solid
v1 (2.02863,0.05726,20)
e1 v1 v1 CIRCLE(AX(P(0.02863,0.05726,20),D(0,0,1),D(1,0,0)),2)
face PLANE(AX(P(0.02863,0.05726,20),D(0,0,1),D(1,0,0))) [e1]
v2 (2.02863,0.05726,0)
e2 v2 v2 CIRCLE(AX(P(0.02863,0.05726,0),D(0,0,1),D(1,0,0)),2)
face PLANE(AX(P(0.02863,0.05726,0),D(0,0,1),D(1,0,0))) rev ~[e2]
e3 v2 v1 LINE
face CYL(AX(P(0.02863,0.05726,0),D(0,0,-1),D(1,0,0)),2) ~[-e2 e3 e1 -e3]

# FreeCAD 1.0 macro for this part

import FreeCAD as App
import Part
import Sketcher
Q = App.Units.Quantity

doc = App.newDocument("Part")
body = doc.addObject("PartDesign::Body", "Body")

sketch1 = body.newObject("Sketcher::SketchObject", "Sketch")
sketch1.AttachmentSupport = (doc.getObject("XY_Plane"), [""])
sketch1.MapMode = "FlatFace"
sketch1.addGeometry(Part.Circle(App.Vector(0.02863, 0.05726, 0), App.Vector(0, 0, 1), 2), False)
sketch1.addConstraint([
    Sketcher.Constraint("Diameter", 0, Q("4 mm")),
    Sketcher.Constraint("DistanceX", -1, 1, 0, 3, Q("0.02863 mm")),
    Sketcher.Constraint("DistanceY", -1, 1, 0, 3, Q("0.05726 mm")),
])
pad1 = body.newObject("PartDesign::Pad", "Pad")
pad1.Profile = sketch1
pad1.Length = 20

doc.recompute()
